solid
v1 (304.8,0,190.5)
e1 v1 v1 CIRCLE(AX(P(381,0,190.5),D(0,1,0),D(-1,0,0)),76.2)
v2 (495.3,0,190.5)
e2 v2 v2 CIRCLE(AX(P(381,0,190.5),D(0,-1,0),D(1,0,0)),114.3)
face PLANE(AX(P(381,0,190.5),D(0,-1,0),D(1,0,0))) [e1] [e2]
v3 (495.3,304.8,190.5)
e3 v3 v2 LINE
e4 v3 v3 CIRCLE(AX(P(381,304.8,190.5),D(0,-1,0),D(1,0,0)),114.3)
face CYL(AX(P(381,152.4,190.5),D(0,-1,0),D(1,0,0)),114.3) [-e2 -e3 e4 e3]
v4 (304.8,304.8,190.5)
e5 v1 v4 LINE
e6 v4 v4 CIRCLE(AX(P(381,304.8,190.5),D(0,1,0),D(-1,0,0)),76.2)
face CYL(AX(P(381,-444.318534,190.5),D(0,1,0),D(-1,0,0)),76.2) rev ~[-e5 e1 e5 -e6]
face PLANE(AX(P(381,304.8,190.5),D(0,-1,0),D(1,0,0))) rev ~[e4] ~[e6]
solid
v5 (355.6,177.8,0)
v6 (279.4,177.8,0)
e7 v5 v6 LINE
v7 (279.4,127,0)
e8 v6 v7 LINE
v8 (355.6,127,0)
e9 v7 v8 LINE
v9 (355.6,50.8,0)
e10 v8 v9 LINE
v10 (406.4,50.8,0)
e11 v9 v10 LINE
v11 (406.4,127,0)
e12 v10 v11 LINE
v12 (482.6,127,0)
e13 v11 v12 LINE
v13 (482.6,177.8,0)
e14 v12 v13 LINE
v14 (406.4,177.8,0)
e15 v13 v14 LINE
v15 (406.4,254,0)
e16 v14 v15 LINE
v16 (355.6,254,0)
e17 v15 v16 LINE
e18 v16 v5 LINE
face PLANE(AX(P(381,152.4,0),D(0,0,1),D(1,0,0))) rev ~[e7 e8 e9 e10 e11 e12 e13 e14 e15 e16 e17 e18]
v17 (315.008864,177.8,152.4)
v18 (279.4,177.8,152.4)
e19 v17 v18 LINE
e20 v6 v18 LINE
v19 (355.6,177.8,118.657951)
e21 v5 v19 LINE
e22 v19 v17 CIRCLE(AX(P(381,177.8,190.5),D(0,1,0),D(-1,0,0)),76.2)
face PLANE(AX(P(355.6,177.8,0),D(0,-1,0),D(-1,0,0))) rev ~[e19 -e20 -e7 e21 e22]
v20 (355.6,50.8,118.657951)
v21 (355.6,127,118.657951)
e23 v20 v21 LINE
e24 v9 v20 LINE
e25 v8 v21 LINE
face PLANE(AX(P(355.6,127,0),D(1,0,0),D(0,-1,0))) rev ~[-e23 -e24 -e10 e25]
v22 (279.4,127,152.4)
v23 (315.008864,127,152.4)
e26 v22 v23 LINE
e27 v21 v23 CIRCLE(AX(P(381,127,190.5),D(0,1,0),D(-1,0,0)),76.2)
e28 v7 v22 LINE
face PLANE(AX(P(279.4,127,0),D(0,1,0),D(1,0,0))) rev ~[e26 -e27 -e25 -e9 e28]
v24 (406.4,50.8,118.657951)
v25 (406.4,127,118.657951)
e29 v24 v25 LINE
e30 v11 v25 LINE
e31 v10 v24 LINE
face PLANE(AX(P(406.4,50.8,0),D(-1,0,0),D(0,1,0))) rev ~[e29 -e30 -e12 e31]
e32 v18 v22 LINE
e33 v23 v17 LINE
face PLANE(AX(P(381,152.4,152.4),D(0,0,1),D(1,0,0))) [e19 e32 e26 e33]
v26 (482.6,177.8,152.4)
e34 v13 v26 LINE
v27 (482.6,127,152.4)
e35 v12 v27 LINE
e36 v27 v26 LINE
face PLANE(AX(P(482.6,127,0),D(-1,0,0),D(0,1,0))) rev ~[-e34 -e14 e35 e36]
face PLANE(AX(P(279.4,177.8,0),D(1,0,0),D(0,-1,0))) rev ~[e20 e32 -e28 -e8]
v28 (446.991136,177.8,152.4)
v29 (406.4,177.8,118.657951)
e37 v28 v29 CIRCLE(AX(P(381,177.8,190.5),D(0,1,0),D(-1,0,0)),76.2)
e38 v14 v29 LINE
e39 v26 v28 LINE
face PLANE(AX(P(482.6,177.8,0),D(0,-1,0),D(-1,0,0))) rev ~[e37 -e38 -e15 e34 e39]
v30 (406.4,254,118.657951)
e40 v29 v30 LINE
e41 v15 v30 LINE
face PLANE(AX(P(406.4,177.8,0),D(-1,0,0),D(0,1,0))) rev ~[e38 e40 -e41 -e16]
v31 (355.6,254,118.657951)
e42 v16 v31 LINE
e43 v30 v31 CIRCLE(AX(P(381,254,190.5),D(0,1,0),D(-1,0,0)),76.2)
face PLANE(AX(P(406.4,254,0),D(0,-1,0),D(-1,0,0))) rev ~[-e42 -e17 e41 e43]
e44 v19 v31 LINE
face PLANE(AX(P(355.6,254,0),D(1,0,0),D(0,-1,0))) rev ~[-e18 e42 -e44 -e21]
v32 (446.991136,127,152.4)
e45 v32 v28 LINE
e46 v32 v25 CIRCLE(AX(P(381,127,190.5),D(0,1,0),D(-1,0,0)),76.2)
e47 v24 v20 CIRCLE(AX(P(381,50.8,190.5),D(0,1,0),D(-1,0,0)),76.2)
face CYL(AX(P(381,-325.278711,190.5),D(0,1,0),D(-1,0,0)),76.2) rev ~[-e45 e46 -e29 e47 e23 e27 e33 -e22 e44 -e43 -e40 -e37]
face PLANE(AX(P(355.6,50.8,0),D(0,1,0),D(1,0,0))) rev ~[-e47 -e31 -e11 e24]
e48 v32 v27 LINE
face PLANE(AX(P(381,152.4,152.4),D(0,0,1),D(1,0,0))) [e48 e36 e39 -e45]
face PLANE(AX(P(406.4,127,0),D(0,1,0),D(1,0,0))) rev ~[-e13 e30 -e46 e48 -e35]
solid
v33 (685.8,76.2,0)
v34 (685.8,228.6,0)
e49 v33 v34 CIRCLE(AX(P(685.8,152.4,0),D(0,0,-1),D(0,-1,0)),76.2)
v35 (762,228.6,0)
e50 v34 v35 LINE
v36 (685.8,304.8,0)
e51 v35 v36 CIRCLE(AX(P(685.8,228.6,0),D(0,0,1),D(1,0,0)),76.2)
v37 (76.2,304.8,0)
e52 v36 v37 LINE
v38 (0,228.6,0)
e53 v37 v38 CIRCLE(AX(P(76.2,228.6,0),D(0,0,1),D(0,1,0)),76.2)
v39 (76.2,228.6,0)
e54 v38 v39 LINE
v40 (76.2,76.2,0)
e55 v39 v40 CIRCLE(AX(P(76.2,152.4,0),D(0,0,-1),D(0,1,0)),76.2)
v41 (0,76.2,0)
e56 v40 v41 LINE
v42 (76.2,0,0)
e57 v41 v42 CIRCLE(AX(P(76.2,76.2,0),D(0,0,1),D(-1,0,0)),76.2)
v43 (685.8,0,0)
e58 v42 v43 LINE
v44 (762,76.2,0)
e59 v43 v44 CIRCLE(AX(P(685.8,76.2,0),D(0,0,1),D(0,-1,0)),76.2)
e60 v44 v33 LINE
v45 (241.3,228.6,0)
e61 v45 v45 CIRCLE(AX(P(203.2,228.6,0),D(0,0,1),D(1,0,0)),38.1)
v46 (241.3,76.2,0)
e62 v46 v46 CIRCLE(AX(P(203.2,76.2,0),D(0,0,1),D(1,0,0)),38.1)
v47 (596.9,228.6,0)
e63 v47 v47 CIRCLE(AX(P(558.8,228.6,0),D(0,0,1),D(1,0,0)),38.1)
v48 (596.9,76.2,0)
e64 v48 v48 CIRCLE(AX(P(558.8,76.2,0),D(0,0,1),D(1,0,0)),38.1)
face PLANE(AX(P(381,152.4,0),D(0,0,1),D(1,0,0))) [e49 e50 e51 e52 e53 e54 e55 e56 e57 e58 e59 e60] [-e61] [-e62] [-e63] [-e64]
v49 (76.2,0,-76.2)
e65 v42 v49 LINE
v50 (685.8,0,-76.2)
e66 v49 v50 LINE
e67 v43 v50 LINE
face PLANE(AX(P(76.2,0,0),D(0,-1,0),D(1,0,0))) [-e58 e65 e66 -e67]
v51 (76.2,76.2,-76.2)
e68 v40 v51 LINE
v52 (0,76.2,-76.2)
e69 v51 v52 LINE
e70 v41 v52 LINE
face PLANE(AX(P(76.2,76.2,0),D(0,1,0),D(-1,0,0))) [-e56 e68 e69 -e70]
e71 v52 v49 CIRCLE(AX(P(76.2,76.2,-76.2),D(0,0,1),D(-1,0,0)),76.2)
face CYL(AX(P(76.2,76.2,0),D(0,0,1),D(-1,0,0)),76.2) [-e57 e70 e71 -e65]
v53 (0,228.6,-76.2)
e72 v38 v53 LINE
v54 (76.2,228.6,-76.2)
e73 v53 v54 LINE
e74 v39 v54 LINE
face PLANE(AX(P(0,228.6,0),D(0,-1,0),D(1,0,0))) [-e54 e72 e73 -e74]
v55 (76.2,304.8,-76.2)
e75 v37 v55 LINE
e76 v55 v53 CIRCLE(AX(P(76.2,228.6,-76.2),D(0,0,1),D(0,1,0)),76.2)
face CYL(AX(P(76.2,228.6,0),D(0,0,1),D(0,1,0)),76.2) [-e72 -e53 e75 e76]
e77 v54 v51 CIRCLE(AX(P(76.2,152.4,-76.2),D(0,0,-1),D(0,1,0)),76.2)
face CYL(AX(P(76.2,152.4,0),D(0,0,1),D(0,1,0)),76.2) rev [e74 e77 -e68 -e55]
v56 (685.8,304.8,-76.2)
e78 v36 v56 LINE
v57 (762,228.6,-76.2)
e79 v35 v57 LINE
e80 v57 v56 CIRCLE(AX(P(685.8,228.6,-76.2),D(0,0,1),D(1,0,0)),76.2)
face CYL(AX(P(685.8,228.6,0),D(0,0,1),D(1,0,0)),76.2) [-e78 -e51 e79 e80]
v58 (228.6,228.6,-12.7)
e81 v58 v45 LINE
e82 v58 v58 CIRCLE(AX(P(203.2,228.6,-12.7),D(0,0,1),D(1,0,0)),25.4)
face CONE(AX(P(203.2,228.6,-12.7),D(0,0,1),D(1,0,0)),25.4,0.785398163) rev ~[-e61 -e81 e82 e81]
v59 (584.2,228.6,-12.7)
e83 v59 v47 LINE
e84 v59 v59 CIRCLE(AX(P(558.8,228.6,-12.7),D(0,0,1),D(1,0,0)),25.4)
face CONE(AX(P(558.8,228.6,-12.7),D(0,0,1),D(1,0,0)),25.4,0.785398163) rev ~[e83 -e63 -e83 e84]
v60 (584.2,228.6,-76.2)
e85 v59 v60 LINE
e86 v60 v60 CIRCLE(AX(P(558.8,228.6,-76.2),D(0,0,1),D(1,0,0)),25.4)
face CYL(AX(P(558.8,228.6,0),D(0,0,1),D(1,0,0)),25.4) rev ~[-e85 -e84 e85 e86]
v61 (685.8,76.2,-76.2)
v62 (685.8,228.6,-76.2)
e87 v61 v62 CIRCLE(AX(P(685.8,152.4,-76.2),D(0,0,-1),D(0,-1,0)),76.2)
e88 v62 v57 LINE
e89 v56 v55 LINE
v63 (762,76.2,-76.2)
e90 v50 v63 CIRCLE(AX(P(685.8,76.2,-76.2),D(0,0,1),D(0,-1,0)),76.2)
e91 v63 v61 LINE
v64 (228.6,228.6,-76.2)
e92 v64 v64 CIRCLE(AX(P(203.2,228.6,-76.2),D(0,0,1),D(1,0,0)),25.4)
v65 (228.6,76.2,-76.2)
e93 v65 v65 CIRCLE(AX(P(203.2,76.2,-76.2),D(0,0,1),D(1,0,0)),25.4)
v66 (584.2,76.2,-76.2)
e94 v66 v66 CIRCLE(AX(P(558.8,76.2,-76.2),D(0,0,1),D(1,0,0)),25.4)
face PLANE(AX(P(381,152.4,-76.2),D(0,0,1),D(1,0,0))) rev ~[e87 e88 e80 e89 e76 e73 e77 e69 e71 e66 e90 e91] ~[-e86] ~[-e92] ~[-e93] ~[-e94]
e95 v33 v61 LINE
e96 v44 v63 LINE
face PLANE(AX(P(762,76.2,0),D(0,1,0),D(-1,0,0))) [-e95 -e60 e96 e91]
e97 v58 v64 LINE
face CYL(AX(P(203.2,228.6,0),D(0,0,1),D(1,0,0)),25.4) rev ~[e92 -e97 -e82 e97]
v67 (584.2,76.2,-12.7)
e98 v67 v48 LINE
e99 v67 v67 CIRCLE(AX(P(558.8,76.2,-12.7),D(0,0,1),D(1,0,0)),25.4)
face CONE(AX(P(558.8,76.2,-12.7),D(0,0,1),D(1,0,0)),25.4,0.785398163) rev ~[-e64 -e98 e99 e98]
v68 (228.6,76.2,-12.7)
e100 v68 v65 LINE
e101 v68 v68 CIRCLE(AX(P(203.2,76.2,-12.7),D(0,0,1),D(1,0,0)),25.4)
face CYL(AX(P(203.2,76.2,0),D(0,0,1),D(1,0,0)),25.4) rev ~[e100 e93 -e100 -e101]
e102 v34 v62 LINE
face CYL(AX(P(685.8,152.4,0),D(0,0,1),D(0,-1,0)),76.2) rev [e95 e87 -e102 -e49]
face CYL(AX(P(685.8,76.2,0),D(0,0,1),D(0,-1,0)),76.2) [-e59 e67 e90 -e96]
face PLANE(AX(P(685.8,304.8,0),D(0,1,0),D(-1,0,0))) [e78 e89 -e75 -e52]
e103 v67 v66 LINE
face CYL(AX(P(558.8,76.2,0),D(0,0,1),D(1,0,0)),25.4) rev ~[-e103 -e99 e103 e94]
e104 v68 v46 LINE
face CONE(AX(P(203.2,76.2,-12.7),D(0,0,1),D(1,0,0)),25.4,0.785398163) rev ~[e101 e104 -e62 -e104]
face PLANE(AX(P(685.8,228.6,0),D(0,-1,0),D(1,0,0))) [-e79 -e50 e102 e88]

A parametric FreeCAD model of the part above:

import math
import FreeCAD as App
import Part
import Sketcher
from FreeCAD import Vector
Q = App.Units.Quantity


def edges_at(feature, points):
    """Names of the edges that pass closest to the given points."""
    edges = feature.Shape.Edges
    near = lambda p: min(range(len(edges)), key=lambda i: edges[i].distToShape(Part.Vertex(*p))[0])
    return sorted({f"Edge{near(p) + 1}" for p in points})


def add_polygon(sketch, points):
    """Adds a closed chain of lines whose ends are joined by coincident constraints."""
    first, n = sketch.GeometryCount, len(points)
    for a, b in zip(points, points[1:] + points[:1]):
        sketch.addGeometry(Part.LineSegment(App.Vector(*a, 0), App.Vector(*b, 0)), False)
    for i in range(n):
        sketch.addConstraint(Sketcher.Constraint("Coincident", first + i, 2, first + (i + 1) % n, 1))

doc = App.newDocument("Part")
body = doc.addObject("PartDesign::Body", "Body")

sketch1 = body.newObject("Sketcher::SketchObject", "Sketch")
sketch1.AttachmentSupport = (doc.getObject("XY_Plane"), [""])
sketch1.MapMode = "FlatFace"
sketch1.addGeometry([
    Part.ArcOfCircle(Part.Circle(Vector(76, 76, 0), Vector(0, 0, 1), 76), math.radians(180), math.radians(270)),
    Part.LineSegment(Vector(76, 0, 0), Vector(686, 0, 0)),
    Part.ArcOfCircle(Part.Circle(Vector(686, 76, 0), Vector(0, 0, 1), 76), math.radians(-90), math.radians(0)),
    Part.LineSegment(Vector(762, 76, 0), Vector(686, 76, 0)),
    Part.ArcOfCircle(Part.Circle(Vector(686, 152, 0), Vector(0, 0, 1), 76), math.radians(90), math.radians(270)),
    Part.LineSegment(Vector(686, 229, 0), Vector(762, 229, 0)),
    Part.ArcOfCircle(Part.Circle(Vector(686, 229, 0), Vector(0, 0, 1), 76), math.radians(0), math.radians(90)),
    Part.LineSegment(Vector(686, 305, 0), Vector(76, 305, 0)),
    Part.ArcOfCircle(Part.Circle(Vector(76, 229, 0), Vector(0, 0, 1), 76), math.radians(90), math.radians(180)),
    Part.LineSegment(Vector(0, 229, 0), Vector(76, 229, 0)),
    Part.ArcOfCircle(Part.Circle(Vector(76, 152, 0), Vector(0, 0, 1), 76), math.radians(-90), math.radians(90)),
    Part.LineSegment(Vector(76, 76, 0), Vector(0, 76, 0)),
    Part.Circle(Vector(203, 76, 0), Vector(0, 0, 1), 25),
    Part.Circle(Vector(559, 76, 0), Vector(0, 0, 1), 25),
    Part.Circle(Vector(203, 229, 0), Vector(0, 0, 1), 25),
    Part.Circle(Vector(559, 229, 0), Vector(0, 0, 1), 25),
], False)
sketch1.addConstraint([
    Sketcher.Constraint("Tangent", 0, 2, 1, 1),
    Sketcher.Constraint("Tangent", 1, 2, 2, 1),
    Sketcher.Constraint("Coincident", 2, 2, 3, 1),
    Sketcher.Constraint("Tangent", 3, 2, 4, 2),
    Sketcher.Constraint("Tangent", 4, 1, 5, 1),
    Sketcher.Constraint("Coincident", 5, 2, 6, 1),
    Sketcher.Constraint("Tangent", 6, 2, 7, 1),
    Sketcher.Constraint("Tangent", 7, 2, 8, 1),
    Sketcher.Constraint("Coincident", 8, 2, 9, 1),
    Sketcher.Constraint("Tangent", 9, 2, 10, 2),
    Sketcher.Constraint("Tangent", 10, 1, 11, 1),
    Sketcher.Constraint("Coincident", 11, 2, 0, 1),
    Sketcher.Constraint("Horizontal", 1),
    Sketcher.Constraint("Horizontal", 3),
    Sketcher.Constraint("Horizontal", 5),
    Sketcher.Constraint("Horizontal", 7),
    Sketcher.Constraint("Horizontal", 9),
    Sketcher.Constraint("Horizontal", 11),
    Sketcher.Constraint("Coincident", 3, 2, 2, 3),
    Sketcher.Constraint("Coincident", 4, 1, 6, 3),
    Sketcher.Constraint("Coincident", 9, 2, 8, 3),
    Sketcher.Constraint("Coincident", 10, 1, 0, 3),
    Sketcher.Constraint("Equal", 0, 2),
    Sketcher.Constraint("Equal", 2, 4),
    Sketcher.Constraint("Equal", 4, 6),
    Sketcher.Constraint("Equal", 6, 8),
    Sketcher.Constraint("Equal", 12, 13),
    Sketcher.Constraint("Equal", 13, 14),
    Sketcher.Constraint("Equal", 14, 15),
    Sketcher.Constraint("PointOnObject", 0, 2, -1),
    Sketcher.Constraint("PointOnObject", 8, 2, -2),
    Sketcher.Constraint("Horizontal", 2, 3, 12, 3),
    Sketcher.Constraint("Horizontal", 12, 3, 13, 3),
    Sketcher.Constraint("Horizontal", 8, 3, 14, 3),
    Sketcher.Constraint("Horizontal", 14, 3, 15, 3),
    Sketcher.Constraint("Vertical", 12, 3, 14, 3),
    Sketcher.Constraint("Vertical", 13, 3, 15, 3),
    Sketcher.Constraint("Diameter", 12, Q("2 in")),
    Sketcher.Constraint("Radius", 0, Q("3 in")),
    Sketcher.Constraint("DistanceX", 1, 1, 1, 2, Q("24 in")),
    Sketcher.Constraint("DistanceX", -1, 1, 12, 3, Q("8 in")),
    Sketcher.Constraint("DistanceX", -1, 1, 13, 3, Q("22 in")),
])
pad1 = body.newObject("PartDesign::Pad", "Pad")
pad1.Profile = sketch1
pad1.Length = Q("3 in")
pad1.Reversed = True
doc.recompute()

chamfer = body.newObject("PartDesign::Chamfer", "Chamfer")
chamfer.Base = (pad1, edges_at(pad1, [
    (177.8, 228.6, 0),
    (177.8, 76.2, 0),
    (533.4, 76.2, 0),
    (533.4, 228.6, 0),
]))
chamfer.Size = Q("0.5 in")
body2 = doc.addObject("PartDesign::Body", "Body001")

sketch2 = body2.newObject("Sketcher::SketchObject", "Sketch001")
sketch2.AttachmentSupport = (doc.getObject("XZ_Plane001"), [""])
sketch2.MapMode = "FlatFace"
sketch2.AttachmentOffset = App.Placement(Vector(0, 0, -6 * 25.4), App.Rotation())
sketch2.addGeometry(Part.Circle(Vector(381, 190, 0), Vector(0, 0, 1), 114), False)
sketch2.addConstraint([
    Sketcher.Constraint("Diameter", 0, Q("9 in")),
    Sketcher.Constraint("DistanceX", -1, 1, 0, 3, Q("15 in")),
    Sketcher.Constraint("DistanceY", -1, 1, 0, 3, Q("7.5 in")),
])
pad2 = body2.newObject("PartDesign::Pad", "Pad001")
pad2.Profile = sketch2
pad2.Length = Q("12 in")
pad2.Midplane = True

sketch3 = body2.newObject("Sketcher::SketchObject", "Sketch002")
sketch3.AttachmentSupport = (doc.getObject("XZ_Plane001"), [""])
sketch3.MapMode = "FlatFace"
sketch3.addGeometry(Part.Circle(Vector(381, 190, 0), Vector(0, 0, 1), 76), False)
sketch3.addConstraint([
    Sketcher.Constraint("Diameter", 0, Q("6 in")),
    Sketcher.Constraint("DistanceX", -1, 1, 0, 3, Q("15 in")),
    Sketcher.Constraint("DistanceY", -1, 1, 0, 3, Q("7.5 in")),
])
doc.recompute()
hole = body2.newObject("PartDesign::Hole", "Hole")
hole.Profile = sketch3
hole.ThreadType = "None"
hole.Diameter = Q("6 in")
hole.DepthType = "ThroughAll"
body3 = doc.addObject("PartDesign::Body", "Body002")

sketch4 = body3.newObject("Sketcher::SketchObject", "Sketch003")
sketch4.AttachmentSupport = (doc.getObject("XY_Plane002"), [""])
sketch4.MapMode = "FlatFace"
add_polygon(sketch4, [(356, 178), (279, 178), (279, 127), (356, 127), (356, 51), (406, 51), (406, 127), (483, 127), (483, 178), (406, 178), (406, 254), (356, 254)])
sketch4.addConstraint([
    Sketcher.Constraint("Horizontal", 0),
    Sketcher.Constraint("Vertical", 1),
    Sketcher.Constraint("Horizontal", 2),
    Sketcher.Constraint("Vertical", 3),
    Sketcher.Constraint("Horizontal", 4),
    Sketcher.Constraint("Vertical", 5),
    Sketcher.Constraint("Horizontal", 6),
    Sketcher.Constraint("Vertical", 7),
    Sketcher.Constraint("Horizontal", 8),
    Sketcher.Constraint("Vertical", 9),
    Sketcher.Constraint("Horizontal", 10),
    Sketcher.Constraint("Vertical", 11),
    Sketcher.Constraint("Horizontal", 2, 2, 5, 2),
    Sketcher.Constraint("Horizontal", 0, 2, 7, 2),
    Sketcher.Constraint("Vertical", 5, 2, 8, 2),
    Sketcher.Constraint("Vertical", 3, 2, 10, 2),
    Sketcher.Constraint("Equal", 2, 6),
    Sketcher.Constraint("Equal", 10, 1),
    Sketcher.Constraint("Equal", 8, 3),
    Sketcher.Constraint("Equal", 5, 9),
    Sketcher.Constraint("DistanceX", 0, 2, 0, 1, Q("3 in")),
    Sketcher.Constraint("DistanceX", 4, 1, 4, 2, Q("2 in")),
    Sketcher.Constraint("DistanceX", -1, 1, 0, 2, Q("11 in")),
    Sketcher.Constraint("DistanceY", -1, 1, 0, 2, Q("7 in")),
])
pad3 = body3.newObject("PartDesign::Pad", "Pad002")
pad3.Profile = sketch4
pad3.Length = Q("6 in")

sketch5 = body3.newObject("Sketcher::SketchObject", "Sketch004")
sketch5.AttachmentSupport = (doc.getObject("XZ_Plane002"), [""])
sketch5.MapMode = "FlatFace"
sketch5.addGeometry(Part.Circle(Vector(381, 190, 0), Vector(0, 0, 1), 76), False)
sketch5.addConstraint([
    Sketcher.Constraint("Diameter", 0, Q("6 in")),
    Sketcher.Constraint("DistanceX", -1, 1, 0, 3, Q("15 in")),
    Sketcher.Constraint("DistanceY", -1, 1, 0, 3, Q("7.5 in")),
])
doc.recompute()
hole2 = body3.newObject("PartDesign::Hole", "Hole001")
hole2.Profile = sketch5
hole2.ThreadType = "None"
hole2.Diameter = Q("6 in")
hole2.DepthType = "ThroughAll"

doc.recompute()
